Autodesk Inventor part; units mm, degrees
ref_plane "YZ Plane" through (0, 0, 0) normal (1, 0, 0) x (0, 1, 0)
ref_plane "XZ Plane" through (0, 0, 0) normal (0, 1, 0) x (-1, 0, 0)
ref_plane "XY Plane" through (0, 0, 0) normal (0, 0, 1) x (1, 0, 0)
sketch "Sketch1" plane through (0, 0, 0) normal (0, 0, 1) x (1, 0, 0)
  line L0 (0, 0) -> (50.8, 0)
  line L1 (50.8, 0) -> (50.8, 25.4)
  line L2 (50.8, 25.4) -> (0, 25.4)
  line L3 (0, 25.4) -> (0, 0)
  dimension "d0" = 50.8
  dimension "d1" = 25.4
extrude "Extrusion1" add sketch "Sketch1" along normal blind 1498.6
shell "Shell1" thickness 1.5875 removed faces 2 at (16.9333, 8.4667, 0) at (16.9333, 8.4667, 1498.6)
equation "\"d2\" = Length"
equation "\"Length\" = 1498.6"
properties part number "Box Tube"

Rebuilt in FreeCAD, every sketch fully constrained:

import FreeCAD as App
import Part
import Sketcher

V = App.Vector
Q = App.Units.Quantity


def faces_at(feature, points):
    """Names of the faces that lie closest to the given points."""
    faces = feature.Shape.Faces
    near = lambda p: min(range(len(faces)), key=lambda i: faces[i].distToShape(Part.Vertex(*p))[0])
    return sorted({f"Face{near(p) + 1}" for p in points})


def add_polygon(sketch, points):
    """Adds a closed chain of lines whose ends are joined by coincident constraints."""
    first, n = sketch.GeometryCount, len(points)
    for a, b in zip(points, points[1:] + points[:1]):
        sketch.addGeometry(Part.LineSegment(App.Vector(*a, 0), App.Vector(*b, 0)), False)
    for i in range(n):
        sketch.addConstraint(Sketcher.Constraint("Coincident", first + i, 2, first + (i + 1) % n, 1))

doc = App.newDocument("Part")
params = doc.addObject("Spreadsheet::Sheet", "Params")
for row, (alias, value) in enumerate([
    ("sketch1_width", "2 in"),
    ("sketch1_height", "1 in"),
    ("pad1_length", "59 in"),
    ("thickness_wall", "0.0625 in"),
], start=1):
    params.set(f"A{row}", alias)
    params.set(f"B{row}", "=" + value)
    params.setAlias(f"B{row}", alias)

body = doc.addObject("PartDesign::Body", "Body")

sketch1 = body.newObject("Sketcher::SketchObject", "Sketch")
sketch1.AttachmentSupport = (doc.getObject("XY_Plane"), [""])
sketch1.MapMode = "FlatFace"
add_polygon(sketch1, [(0, 25.4), (0, 0), (50.8, 0), (50.8, 25.4)])
sketch1.addConstraint([
    Sketcher.Constraint("Vertical", 0),
    Sketcher.Constraint("Horizontal", 1),
    Sketcher.Constraint("Vertical", 2),
    Sketcher.Constraint("Horizontal", 3),
    Sketcher.Constraint("Coincident", 0, 2, -1, 1),
    Sketcher.Constraint("DistanceX", 1, 1, 1, 2, Q("2 in")),
    Sketcher.Constraint("DistanceY", 0, 2, 0, 1, Q("1 in")),
])
sketch1.setExpression("Constraints[9]", "Params.sketch1_width")
sketch1.setExpression("Constraints[10]", "Params.sketch1_height")
pad1 = body.newObject("PartDesign::Pad", "Pad")
pad1.Profile = sketch1
pad1.setExpression("Length", "Params.pad1_length")
doc.recompute()

thickness = body.newObject("PartDesign::Thickness", "Thickness")
thickness.Base = (pad1, faces_at(pad1, [(16.933, 8.467, 0), (16.933, 8.467, 1498.6)]))
thickness.setExpression("Value", "Params.thickness_wall")
thickness.Reversed = True
thickness.Join = "Intersection"

doc.recompute()
